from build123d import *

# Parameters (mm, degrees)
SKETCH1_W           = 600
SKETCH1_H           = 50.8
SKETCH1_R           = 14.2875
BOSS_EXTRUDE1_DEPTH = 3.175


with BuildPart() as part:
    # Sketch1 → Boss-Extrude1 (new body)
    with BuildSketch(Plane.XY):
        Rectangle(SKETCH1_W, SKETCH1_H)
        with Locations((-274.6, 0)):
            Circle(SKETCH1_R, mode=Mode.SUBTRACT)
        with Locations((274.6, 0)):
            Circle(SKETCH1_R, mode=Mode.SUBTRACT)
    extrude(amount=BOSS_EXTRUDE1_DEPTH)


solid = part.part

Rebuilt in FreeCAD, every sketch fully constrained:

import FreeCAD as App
import Part
import Sketcher

V = App.Vector
Q = App.Units.Quantity


def add_polygon(sketch, points):
    """Adds a closed chain of lines whose ends are joined by coincident constraints."""
    first, n = sketch.GeometryCount, len(points)
    for a, b in zip(points, points[1:] + points[:1]):
        sketch.addGeometry(Part.LineSegment(App.Vector(*a, 0), App.Vector(*b, 0)), False)
    for i in range(n):
        sketch.addConstraint(Sketcher.Constraint("Coincident", first + i, 2, first + (i + 1) % n, 1))

doc = App.newDocument("Part")
body = doc.addObject("PartDesign::Body", "Body")

sketch1 = body.newObject("Sketcher::SketchObject", "Sketch")
sketch1.AttachmentSupport = (doc.getObject("XY_Plane"), [""])
sketch1.MapMode = "FlatFace"
add_polygon(sketch1, [(-300, 25), (-300, -25), (300, -25), (300, 25)])
sketch1.addGeometry(Part.Circle(V(-275, 0, 0), V(0, 0, 1), 14), False)
sketch1.addGeometry(Part.Circle(V(275, 0, 0), V(0, 0, 1), 14), False)
sketch1.addConstraint([
    Sketcher.Constraint("Vertical", 0),
    Sketcher.Constraint("Horizontal", 1),
    Sketcher.Constraint("Vertical", 2),
    Sketcher.Constraint("Horizontal", 3),
    Sketcher.Constraint("Equal", 4, 5),
    Sketcher.Constraint("Symmetric", 4, 3, 5, 3, -1, 1),
    Sketcher.Constraint("Symmetric", 0, 2, 2, 2, -1, 1),
    Sketcher.Constraint("PointOnObject", 4, 3, -1),
    Sketcher.Constraint("DistanceY", 0, 2, 0, 1, Q("2 in")),
    Sketcher.Constraint("Diameter", 4, Q("1.125 in")),
    Sketcher.Constraint("DistanceX", 0, 2, 4, 3, Q("1 in")),
    Sketcher.Constraint("DistanceX", 1, 1, 1, 2, Q("600 mm")),
])
pad1 = body.newObject("PartDesign::Pad", "Pad")
pad1.Profile = sketch1
pad1.Length = Q("0.125 in")

doc.recompute()
